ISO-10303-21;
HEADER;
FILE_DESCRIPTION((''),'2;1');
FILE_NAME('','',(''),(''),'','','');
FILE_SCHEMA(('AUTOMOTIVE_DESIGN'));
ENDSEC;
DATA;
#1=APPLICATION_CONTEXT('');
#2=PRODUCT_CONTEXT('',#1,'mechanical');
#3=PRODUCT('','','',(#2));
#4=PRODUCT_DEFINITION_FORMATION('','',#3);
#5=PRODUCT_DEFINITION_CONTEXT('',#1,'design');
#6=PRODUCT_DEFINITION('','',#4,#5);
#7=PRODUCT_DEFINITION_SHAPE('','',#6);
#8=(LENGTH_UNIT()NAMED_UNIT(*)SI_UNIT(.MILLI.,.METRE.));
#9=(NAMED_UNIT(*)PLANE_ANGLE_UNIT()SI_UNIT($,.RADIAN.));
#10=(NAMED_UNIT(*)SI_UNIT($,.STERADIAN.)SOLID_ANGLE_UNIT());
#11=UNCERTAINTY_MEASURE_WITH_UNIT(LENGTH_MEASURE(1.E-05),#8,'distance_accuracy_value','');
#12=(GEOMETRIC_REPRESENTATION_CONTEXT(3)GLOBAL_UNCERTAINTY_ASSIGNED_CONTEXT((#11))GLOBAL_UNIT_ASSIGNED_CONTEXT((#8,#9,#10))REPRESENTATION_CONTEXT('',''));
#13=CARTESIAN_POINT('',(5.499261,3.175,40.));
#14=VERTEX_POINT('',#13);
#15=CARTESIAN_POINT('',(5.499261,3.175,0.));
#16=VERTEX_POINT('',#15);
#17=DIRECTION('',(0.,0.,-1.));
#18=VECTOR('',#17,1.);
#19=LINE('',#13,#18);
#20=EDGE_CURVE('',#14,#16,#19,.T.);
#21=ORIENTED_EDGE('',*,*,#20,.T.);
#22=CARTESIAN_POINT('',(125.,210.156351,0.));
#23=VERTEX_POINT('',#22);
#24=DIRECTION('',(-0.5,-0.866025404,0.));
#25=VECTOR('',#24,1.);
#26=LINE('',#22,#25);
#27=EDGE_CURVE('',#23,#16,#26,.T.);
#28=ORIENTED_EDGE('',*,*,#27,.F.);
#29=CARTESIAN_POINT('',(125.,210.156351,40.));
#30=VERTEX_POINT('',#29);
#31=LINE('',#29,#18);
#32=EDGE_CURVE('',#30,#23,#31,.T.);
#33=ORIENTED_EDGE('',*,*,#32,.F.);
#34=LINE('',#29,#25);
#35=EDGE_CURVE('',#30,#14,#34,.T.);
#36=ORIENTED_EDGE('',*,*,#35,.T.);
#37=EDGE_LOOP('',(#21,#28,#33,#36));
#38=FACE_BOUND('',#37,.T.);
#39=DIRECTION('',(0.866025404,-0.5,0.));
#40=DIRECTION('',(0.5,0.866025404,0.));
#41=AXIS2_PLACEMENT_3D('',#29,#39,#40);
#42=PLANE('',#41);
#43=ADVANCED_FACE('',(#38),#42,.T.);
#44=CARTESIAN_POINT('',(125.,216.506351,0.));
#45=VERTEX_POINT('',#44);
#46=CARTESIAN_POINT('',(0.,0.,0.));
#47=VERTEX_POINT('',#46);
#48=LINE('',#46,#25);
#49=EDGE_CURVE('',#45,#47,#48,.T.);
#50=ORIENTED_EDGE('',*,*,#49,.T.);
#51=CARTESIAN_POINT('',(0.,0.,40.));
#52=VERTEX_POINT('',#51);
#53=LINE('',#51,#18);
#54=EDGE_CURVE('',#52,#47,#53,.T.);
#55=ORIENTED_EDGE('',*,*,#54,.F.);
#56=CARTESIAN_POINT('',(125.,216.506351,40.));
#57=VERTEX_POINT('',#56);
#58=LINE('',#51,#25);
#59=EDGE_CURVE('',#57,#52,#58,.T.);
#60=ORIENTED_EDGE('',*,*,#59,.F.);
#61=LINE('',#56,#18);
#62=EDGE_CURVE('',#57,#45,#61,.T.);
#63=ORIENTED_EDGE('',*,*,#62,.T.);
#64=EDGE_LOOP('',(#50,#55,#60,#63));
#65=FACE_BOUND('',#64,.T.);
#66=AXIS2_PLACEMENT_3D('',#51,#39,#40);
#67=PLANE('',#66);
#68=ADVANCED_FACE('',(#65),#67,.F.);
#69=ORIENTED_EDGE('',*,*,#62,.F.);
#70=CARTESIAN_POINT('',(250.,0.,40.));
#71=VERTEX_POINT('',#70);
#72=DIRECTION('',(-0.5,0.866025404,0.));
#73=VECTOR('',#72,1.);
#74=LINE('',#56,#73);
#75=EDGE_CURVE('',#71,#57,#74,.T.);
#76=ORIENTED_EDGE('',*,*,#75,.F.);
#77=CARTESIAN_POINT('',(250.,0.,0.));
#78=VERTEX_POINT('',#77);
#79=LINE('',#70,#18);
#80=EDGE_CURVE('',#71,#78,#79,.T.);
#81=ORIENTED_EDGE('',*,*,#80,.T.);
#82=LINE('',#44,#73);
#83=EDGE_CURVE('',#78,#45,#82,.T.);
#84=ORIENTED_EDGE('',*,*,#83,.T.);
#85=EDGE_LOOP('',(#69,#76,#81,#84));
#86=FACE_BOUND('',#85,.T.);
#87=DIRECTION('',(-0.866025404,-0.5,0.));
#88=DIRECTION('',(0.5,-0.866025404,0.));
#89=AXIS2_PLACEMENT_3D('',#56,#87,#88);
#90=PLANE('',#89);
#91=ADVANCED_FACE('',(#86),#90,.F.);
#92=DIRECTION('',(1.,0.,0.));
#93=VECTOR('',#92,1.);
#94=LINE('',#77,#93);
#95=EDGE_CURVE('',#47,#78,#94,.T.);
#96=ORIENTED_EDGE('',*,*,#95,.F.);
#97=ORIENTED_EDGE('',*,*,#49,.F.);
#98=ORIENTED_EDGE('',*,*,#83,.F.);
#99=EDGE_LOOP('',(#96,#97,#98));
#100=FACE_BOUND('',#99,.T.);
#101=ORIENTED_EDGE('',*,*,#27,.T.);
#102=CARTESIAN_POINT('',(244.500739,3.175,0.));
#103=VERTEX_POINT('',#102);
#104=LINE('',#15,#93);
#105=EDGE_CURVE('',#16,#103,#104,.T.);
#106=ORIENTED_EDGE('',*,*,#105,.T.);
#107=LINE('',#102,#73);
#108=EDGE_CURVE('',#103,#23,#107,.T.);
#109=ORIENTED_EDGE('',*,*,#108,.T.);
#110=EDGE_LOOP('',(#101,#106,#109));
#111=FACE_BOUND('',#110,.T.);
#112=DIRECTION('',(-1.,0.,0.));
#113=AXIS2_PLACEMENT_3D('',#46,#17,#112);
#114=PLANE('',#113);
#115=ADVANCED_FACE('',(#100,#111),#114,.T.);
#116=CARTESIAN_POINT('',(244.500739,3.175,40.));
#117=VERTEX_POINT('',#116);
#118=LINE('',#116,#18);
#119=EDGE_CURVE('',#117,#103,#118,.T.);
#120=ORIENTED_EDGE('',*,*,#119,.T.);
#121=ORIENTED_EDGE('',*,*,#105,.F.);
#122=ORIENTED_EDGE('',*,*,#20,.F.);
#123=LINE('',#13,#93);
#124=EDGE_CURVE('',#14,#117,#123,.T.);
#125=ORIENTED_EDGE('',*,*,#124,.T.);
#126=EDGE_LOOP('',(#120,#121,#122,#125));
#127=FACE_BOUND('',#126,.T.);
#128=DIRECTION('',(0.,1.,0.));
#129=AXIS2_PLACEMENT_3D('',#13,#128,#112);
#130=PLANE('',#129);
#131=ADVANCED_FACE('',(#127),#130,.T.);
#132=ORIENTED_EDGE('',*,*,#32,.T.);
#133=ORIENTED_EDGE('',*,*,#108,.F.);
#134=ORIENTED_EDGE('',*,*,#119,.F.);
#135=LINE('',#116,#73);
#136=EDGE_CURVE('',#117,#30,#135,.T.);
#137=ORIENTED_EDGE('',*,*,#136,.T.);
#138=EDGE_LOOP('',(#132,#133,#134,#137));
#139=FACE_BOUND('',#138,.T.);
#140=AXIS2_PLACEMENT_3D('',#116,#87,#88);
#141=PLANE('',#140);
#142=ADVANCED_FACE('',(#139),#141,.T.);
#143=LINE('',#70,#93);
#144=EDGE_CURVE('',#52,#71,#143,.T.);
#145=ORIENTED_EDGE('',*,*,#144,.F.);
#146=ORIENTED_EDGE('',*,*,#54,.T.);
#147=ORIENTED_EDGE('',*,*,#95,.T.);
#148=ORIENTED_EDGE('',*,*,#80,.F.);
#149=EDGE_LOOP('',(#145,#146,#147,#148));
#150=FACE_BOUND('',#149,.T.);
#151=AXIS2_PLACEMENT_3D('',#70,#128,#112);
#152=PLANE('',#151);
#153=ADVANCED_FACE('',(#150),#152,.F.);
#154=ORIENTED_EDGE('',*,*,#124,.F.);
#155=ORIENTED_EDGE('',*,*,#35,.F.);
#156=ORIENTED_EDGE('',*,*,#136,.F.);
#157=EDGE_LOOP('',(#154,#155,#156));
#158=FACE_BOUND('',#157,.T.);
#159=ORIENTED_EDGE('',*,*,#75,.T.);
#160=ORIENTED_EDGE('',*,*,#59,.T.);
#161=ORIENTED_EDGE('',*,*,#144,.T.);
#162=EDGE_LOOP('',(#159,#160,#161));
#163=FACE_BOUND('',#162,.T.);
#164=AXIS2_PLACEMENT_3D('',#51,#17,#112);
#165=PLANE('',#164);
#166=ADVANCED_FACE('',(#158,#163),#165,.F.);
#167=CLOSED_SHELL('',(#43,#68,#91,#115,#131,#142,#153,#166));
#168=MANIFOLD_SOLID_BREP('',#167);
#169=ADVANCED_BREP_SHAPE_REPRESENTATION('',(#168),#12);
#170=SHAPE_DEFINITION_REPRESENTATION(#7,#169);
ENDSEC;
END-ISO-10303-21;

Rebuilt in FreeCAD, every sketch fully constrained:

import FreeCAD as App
import Part
import Sketcher

V = App.Vector
Q = App.Units.Quantity

doc = App.newDocument("Part")
body = doc.addObject("PartDesign::Body", "Body")

sketch1 = doc.addObject("Sketcher::SketchObject", "Sketch")
body.addObject(sketch1)
sketch1.AttachmentSupport = (doc.XY_Plane, [""])
sketch1.MapMode = "FlatFace"
sketch1.addGeometry([
    Part.LineSegment(V(125, 217, 0), V(0, 0, 0)),
    Part.LineSegment(V(0, 0, 0), V(250, 0, 0)),
    Part.LineSegment(V(250, 0, 0), V(125, 217, 0)),
    Part.LineSegment(V(125, 210, 0), V(245, 3, 0)),
    Part.LineSegment(V(245, 3, 0), V(5, 3, 0)),
    Part.LineSegment(V(5, 3, 0), V(125, 210, 0)),
], False)
sketch1.addConstraint([
    Sketcher.Constraint("Coincident", 0, 2, 1, 1),
    Sketcher.Constraint("Coincident", 1, 2, 2, 1),
    Sketcher.Constraint("Coincident", 2, 2, 0, 1),
    Sketcher.Constraint("Coincident", 3, 2, 4, 1),
    Sketcher.Constraint("Coincident", 4, 2, 5, 1),
    Sketcher.Constraint("Coincident", 5, 2, 3, 1),
    Sketcher.Constraint("Horizontal", 1),
    Sketcher.Constraint("Horizontal", 4),
    Sketcher.Constraint("Coincident", 0, 2, -1, 1),
    Sketcher.Constraint("Parallel", 2, 3),
    Sketcher.Constraint("Parallel", 0, 5),
    Sketcher.Constraint("Vertical", 2, 2, 5, 2),
    Sketcher.Constraint("Equal", 0, 2),
    Sketcher.Constraint("DistanceX", 1, 1, 1, 2, 250.0),
    Sketcher.Constraint("Angle", 0, Q("-120 deg")),
    Sketcher.Constraint("DistanceY", 5, 2, 2, 2, 6.35),
    Sketcher.Constraint("DistanceY", -1, 1, 3, 2, 3.175),
])
pad1 = doc.addObject("PartDesign::Pad", "Pad")
body.addObject(pad1)
pad1.Profile = sketch1
pad1.Length = 40

doc.recompute()
